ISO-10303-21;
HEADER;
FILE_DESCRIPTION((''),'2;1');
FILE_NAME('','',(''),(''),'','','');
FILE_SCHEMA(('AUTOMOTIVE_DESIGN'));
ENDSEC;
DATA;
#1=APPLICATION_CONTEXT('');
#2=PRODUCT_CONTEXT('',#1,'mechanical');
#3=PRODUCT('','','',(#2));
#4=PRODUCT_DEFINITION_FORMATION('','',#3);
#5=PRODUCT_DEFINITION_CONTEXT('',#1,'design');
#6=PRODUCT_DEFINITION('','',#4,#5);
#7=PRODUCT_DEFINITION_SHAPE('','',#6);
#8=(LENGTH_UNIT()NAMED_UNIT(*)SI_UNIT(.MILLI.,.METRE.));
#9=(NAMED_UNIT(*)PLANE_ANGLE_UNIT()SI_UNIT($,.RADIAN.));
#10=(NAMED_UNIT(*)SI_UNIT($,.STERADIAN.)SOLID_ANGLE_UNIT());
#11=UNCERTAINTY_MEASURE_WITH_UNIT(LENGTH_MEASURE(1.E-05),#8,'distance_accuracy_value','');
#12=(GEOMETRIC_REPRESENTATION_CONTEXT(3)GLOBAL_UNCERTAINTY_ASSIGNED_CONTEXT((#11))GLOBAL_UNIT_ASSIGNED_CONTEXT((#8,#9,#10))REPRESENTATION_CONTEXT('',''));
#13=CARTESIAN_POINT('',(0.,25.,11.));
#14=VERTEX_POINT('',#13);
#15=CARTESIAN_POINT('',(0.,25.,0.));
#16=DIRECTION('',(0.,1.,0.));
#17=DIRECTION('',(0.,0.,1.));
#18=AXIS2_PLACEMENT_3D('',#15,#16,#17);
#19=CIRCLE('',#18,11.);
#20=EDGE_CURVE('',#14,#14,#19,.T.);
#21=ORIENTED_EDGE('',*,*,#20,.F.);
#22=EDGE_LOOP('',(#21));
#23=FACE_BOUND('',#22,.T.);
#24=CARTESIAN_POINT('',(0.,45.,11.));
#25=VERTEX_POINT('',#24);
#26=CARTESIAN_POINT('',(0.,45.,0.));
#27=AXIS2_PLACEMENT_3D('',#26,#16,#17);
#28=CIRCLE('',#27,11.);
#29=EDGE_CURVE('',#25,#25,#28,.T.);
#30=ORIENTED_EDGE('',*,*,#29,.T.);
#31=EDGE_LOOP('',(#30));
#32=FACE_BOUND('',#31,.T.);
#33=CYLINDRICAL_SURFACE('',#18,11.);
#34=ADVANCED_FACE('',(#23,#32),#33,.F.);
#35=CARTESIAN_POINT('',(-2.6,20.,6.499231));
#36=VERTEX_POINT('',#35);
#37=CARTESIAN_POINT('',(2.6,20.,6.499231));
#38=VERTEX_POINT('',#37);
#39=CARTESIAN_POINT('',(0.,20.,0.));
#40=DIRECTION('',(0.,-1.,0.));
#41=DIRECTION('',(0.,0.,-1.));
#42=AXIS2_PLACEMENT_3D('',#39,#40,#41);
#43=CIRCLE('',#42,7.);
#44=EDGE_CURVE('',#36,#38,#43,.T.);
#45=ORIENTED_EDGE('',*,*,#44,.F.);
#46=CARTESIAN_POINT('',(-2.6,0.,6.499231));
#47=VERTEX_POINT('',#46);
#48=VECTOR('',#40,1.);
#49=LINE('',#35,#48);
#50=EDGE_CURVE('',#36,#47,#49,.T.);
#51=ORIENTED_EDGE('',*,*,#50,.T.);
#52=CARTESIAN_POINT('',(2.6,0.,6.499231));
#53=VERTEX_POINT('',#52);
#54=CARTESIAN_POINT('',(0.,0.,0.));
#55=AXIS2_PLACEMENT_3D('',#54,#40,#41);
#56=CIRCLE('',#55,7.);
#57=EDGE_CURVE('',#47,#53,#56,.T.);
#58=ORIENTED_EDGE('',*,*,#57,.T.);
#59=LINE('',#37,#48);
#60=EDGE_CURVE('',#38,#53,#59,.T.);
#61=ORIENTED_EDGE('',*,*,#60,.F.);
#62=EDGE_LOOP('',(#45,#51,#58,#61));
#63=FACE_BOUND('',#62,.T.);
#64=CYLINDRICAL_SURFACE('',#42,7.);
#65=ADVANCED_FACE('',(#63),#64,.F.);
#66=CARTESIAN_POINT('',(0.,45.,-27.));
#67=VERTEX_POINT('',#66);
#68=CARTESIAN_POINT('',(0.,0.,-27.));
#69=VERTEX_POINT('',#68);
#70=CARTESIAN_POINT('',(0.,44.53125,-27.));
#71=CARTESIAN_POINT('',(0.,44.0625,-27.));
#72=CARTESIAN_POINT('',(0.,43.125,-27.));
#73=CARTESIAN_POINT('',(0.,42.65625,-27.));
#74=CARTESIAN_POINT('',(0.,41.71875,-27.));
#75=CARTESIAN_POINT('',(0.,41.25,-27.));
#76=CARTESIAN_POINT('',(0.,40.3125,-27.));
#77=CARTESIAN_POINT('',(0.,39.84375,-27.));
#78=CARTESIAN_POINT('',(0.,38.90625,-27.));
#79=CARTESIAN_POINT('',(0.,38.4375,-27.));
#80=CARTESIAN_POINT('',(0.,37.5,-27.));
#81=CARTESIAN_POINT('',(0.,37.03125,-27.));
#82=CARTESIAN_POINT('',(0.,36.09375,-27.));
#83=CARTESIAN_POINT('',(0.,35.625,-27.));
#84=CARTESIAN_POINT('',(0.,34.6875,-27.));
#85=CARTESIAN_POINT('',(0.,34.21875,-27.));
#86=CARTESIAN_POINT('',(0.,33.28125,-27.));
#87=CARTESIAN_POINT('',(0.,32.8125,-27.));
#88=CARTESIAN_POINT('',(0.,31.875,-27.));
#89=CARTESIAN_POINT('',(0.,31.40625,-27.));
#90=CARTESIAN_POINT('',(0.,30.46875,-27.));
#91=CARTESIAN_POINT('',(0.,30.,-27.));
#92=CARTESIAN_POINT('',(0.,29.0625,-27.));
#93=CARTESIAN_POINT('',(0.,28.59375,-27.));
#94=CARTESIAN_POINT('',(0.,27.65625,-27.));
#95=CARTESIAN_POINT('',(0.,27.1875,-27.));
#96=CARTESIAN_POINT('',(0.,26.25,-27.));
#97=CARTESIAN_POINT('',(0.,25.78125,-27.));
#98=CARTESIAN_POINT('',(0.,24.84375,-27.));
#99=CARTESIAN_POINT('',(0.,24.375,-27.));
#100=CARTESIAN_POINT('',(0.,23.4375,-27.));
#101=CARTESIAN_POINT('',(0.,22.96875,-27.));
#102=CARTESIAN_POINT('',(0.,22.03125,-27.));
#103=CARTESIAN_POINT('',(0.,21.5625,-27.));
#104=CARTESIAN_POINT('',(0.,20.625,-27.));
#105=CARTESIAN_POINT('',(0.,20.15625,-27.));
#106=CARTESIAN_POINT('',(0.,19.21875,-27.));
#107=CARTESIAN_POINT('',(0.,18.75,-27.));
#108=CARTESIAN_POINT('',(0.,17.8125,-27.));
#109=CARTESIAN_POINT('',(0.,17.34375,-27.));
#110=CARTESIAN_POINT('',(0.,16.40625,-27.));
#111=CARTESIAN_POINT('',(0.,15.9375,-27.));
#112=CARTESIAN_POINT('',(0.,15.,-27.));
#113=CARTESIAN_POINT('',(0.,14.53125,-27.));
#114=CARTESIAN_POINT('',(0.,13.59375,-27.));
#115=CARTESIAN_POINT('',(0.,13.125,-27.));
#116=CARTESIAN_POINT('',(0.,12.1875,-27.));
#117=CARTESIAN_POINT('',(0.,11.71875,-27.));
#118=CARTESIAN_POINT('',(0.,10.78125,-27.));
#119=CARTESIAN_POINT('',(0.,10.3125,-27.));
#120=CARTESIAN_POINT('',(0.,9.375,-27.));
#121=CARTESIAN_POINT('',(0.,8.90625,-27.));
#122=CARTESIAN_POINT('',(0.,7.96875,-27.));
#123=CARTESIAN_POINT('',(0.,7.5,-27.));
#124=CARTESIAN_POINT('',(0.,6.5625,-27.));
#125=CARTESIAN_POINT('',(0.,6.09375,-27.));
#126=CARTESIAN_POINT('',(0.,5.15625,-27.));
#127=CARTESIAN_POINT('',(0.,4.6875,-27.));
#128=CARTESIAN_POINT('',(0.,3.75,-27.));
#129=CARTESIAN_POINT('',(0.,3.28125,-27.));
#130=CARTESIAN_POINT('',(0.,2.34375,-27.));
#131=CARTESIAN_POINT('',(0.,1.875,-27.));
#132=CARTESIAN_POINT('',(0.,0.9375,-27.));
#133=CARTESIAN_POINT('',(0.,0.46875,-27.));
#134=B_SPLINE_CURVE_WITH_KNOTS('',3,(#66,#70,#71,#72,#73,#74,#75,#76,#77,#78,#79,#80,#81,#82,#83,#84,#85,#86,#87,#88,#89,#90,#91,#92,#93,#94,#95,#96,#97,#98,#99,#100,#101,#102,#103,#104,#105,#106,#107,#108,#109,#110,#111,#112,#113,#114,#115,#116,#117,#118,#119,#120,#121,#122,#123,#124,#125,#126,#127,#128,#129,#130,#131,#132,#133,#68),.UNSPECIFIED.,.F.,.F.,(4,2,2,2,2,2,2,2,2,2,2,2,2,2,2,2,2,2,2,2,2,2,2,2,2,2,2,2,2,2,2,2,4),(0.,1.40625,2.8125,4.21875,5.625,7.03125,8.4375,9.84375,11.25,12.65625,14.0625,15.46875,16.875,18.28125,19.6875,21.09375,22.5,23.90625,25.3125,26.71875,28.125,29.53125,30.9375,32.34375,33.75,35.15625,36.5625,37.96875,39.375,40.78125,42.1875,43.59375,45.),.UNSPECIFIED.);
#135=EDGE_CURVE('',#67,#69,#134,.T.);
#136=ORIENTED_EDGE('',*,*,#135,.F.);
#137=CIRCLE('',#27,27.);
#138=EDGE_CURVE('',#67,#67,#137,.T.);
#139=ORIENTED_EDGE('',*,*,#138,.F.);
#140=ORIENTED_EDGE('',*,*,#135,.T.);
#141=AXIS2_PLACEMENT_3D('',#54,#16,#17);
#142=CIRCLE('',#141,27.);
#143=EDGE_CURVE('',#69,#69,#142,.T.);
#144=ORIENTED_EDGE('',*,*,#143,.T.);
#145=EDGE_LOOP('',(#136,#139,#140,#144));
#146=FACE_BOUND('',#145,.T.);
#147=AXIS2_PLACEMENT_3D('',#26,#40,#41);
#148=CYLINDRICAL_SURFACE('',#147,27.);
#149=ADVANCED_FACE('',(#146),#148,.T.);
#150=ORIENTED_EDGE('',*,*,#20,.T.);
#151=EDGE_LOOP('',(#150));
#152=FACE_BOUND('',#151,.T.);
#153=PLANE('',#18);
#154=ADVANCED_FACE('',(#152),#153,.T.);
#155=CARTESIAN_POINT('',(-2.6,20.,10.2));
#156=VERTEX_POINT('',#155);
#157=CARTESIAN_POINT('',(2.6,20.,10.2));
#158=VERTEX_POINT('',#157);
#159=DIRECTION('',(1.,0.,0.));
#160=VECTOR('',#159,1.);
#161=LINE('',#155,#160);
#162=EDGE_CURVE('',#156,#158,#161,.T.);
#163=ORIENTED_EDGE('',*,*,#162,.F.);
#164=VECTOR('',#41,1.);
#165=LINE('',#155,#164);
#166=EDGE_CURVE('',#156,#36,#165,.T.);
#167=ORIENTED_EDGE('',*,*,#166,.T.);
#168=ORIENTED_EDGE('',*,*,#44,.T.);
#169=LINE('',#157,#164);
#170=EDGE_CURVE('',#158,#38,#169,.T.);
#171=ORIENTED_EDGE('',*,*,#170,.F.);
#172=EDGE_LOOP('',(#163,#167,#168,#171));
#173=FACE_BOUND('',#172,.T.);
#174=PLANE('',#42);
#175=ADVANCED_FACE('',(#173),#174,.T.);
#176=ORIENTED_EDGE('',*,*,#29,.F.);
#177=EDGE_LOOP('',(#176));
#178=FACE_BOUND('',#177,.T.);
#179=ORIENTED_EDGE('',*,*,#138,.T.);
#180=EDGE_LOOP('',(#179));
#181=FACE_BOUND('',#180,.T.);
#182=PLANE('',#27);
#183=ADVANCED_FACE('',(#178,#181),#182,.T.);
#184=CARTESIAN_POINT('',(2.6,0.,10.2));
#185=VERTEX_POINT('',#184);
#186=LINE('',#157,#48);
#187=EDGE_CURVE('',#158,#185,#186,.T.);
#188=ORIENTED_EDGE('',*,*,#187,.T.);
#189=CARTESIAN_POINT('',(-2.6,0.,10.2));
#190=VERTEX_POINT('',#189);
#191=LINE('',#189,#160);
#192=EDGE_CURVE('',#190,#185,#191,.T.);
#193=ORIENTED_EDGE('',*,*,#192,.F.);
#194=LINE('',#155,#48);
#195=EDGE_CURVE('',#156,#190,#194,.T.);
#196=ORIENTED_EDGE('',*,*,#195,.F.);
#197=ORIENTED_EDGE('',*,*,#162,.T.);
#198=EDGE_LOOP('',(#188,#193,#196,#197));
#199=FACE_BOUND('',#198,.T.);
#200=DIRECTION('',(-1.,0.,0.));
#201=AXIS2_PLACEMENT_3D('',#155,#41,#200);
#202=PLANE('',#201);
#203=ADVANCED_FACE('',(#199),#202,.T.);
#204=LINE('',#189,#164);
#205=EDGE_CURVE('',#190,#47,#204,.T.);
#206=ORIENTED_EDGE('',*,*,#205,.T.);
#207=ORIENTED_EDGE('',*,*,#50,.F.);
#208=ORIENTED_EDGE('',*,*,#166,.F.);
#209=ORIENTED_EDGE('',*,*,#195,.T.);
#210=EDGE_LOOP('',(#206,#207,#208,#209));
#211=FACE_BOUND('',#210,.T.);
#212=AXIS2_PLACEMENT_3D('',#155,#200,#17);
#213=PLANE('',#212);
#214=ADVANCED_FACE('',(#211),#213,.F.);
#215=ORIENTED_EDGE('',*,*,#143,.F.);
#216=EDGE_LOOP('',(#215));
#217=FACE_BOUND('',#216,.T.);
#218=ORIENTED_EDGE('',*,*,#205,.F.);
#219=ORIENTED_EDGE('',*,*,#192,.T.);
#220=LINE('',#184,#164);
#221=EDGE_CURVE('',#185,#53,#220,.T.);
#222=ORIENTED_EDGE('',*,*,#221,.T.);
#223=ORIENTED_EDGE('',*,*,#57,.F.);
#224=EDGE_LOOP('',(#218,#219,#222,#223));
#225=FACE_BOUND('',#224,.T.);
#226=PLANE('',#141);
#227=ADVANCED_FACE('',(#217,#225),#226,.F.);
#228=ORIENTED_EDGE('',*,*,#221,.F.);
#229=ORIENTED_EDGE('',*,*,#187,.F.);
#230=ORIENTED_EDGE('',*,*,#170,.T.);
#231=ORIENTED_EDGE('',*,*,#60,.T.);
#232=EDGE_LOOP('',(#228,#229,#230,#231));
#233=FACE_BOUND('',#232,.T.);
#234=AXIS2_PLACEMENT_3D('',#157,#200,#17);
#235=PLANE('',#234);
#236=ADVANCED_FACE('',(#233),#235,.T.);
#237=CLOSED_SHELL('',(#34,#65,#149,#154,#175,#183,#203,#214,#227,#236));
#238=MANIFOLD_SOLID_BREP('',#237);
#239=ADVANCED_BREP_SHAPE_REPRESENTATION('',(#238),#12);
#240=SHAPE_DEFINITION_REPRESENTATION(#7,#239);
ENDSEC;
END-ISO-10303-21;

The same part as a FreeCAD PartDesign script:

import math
import FreeCAD as App
import Part
import Sketcher

doc = App.newDocument("Part")
body = doc.addObject("PartDesign::Body", "Body")

sketch1 = doc.addObject("Sketcher::SketchObject", "Sketch")
body.addObject(sketch1)
sketch1.AttachmentSupport = (doc.XZ_Plane, [""])
sketch1.MapMode = "FlatFace"
sketch1.addGeometry(Part.Circle(App.Vector(0, 0, 0), App.Vector(0, 0, 1), 27), False)
sketch1.addConstraint([
    Sketcher.Constraint("Coincident", 0, 3, -1, 1),
    Sketcher.Constraint("Diameter", 0, 54.0),
])
pad1 = doc.addObject("PartDesign::Pad", "Pad")
body.addObject(pad1)
pad1.Profile = sketch1
pad1.Length = 45
pad1.Reversed = True

sketch2 = doc.addObject("Sketcher::SketchObject", "Sketch001")
body.addObject(sketch2)
sketch2.AttachmentSupport = (doc.XZ_Plane, [""])
sketch2.MapMode = "FlatFace"
sketch2.AttachmentOffset = App.Placement(App.Vector(0, 0, -45), App.Rotation())
sketch2.addGeometry(Part.Circle(App.Vector(0, 0, 0), App.Vector(0, 0, 1), 11), False)
sketch2.addConstraint([
    Sketcher.Constraint("Coincident", 0, 3, -1, 1),
    Sketcher.Constraint("Diameter", 0, 22.0),
])
pocket1 = doc.addObject("PartDesign::Pocket", "Pocket")
body.addObject(pocket1)
pocket1.Profile = sketch2
pocket1.Length = 20
pocket1.Reversed = True

sketch3 = doc.addObject("Sketcher::SketchObject", "Sketch002")
body.addObject(sketch3)
sketch3.AttachmentSupport = (doc.XZ_Plane, [""])
sketch3.MapMode = "FlatFace"
sketch3.addGeometry([
    Part.LineSegment(App.Vector(2.6, 10.2, 0), App.Vector(-2.6, 10.2, 0)),
    Part.LineSegment(App.Vector(-2.6, 10.2, 0), App.Vector(-2.6, 6.5, 0)),
    Part.ArcOfCircle(Part.Circle(App.Vector(0, 0, 0), App.Vector(0, 0, 1), 7), math.radians(112), math.radians(428)),
    Part.LineSegment(App.Vector(2.6, 6.5, 0), App.Vector(2.6, 10.2, 0)),
], False)
sketch3.addConstraint([
    Sketcher.Constraint("Coincident", 0, 2, 1, 1),
    Sketcher.Constraint("Coincident", 1, 2, 2, 1),
    Sketcher.Constraint("Coincident", 2, 2, 3, 1),
    Sketcher.Constraint("Coincident", 3, 2, 0, 1),
    Sketcher.Constraint("Horizontal", 0),
    Sketcher.Constraint("Vertical", 1),
    Sketcher.Constraint("Vertical", 3),
    Sketcher.Constraint("Coincident", 2, 3, -1, 1),
    Sketcher.Constraint("Horizontal", 1, 2, 2, 2),
    Sketcher.Constraint("Radius", 2, 7.0),
    Sketcher.Constraint("DistanceX", 0, 2, 0, 1, 5.2),
    Sketcher.Constraint("DistanceY", -1, 1, 0, 2, 10.2),
])
pocket2 = doc.addObject("PartDesign::Pocket", "Pocket001")
body.addObject(pocket2)
pocket2.Profile = sketch3
pocket2.Length = 20

doc.recompute()
